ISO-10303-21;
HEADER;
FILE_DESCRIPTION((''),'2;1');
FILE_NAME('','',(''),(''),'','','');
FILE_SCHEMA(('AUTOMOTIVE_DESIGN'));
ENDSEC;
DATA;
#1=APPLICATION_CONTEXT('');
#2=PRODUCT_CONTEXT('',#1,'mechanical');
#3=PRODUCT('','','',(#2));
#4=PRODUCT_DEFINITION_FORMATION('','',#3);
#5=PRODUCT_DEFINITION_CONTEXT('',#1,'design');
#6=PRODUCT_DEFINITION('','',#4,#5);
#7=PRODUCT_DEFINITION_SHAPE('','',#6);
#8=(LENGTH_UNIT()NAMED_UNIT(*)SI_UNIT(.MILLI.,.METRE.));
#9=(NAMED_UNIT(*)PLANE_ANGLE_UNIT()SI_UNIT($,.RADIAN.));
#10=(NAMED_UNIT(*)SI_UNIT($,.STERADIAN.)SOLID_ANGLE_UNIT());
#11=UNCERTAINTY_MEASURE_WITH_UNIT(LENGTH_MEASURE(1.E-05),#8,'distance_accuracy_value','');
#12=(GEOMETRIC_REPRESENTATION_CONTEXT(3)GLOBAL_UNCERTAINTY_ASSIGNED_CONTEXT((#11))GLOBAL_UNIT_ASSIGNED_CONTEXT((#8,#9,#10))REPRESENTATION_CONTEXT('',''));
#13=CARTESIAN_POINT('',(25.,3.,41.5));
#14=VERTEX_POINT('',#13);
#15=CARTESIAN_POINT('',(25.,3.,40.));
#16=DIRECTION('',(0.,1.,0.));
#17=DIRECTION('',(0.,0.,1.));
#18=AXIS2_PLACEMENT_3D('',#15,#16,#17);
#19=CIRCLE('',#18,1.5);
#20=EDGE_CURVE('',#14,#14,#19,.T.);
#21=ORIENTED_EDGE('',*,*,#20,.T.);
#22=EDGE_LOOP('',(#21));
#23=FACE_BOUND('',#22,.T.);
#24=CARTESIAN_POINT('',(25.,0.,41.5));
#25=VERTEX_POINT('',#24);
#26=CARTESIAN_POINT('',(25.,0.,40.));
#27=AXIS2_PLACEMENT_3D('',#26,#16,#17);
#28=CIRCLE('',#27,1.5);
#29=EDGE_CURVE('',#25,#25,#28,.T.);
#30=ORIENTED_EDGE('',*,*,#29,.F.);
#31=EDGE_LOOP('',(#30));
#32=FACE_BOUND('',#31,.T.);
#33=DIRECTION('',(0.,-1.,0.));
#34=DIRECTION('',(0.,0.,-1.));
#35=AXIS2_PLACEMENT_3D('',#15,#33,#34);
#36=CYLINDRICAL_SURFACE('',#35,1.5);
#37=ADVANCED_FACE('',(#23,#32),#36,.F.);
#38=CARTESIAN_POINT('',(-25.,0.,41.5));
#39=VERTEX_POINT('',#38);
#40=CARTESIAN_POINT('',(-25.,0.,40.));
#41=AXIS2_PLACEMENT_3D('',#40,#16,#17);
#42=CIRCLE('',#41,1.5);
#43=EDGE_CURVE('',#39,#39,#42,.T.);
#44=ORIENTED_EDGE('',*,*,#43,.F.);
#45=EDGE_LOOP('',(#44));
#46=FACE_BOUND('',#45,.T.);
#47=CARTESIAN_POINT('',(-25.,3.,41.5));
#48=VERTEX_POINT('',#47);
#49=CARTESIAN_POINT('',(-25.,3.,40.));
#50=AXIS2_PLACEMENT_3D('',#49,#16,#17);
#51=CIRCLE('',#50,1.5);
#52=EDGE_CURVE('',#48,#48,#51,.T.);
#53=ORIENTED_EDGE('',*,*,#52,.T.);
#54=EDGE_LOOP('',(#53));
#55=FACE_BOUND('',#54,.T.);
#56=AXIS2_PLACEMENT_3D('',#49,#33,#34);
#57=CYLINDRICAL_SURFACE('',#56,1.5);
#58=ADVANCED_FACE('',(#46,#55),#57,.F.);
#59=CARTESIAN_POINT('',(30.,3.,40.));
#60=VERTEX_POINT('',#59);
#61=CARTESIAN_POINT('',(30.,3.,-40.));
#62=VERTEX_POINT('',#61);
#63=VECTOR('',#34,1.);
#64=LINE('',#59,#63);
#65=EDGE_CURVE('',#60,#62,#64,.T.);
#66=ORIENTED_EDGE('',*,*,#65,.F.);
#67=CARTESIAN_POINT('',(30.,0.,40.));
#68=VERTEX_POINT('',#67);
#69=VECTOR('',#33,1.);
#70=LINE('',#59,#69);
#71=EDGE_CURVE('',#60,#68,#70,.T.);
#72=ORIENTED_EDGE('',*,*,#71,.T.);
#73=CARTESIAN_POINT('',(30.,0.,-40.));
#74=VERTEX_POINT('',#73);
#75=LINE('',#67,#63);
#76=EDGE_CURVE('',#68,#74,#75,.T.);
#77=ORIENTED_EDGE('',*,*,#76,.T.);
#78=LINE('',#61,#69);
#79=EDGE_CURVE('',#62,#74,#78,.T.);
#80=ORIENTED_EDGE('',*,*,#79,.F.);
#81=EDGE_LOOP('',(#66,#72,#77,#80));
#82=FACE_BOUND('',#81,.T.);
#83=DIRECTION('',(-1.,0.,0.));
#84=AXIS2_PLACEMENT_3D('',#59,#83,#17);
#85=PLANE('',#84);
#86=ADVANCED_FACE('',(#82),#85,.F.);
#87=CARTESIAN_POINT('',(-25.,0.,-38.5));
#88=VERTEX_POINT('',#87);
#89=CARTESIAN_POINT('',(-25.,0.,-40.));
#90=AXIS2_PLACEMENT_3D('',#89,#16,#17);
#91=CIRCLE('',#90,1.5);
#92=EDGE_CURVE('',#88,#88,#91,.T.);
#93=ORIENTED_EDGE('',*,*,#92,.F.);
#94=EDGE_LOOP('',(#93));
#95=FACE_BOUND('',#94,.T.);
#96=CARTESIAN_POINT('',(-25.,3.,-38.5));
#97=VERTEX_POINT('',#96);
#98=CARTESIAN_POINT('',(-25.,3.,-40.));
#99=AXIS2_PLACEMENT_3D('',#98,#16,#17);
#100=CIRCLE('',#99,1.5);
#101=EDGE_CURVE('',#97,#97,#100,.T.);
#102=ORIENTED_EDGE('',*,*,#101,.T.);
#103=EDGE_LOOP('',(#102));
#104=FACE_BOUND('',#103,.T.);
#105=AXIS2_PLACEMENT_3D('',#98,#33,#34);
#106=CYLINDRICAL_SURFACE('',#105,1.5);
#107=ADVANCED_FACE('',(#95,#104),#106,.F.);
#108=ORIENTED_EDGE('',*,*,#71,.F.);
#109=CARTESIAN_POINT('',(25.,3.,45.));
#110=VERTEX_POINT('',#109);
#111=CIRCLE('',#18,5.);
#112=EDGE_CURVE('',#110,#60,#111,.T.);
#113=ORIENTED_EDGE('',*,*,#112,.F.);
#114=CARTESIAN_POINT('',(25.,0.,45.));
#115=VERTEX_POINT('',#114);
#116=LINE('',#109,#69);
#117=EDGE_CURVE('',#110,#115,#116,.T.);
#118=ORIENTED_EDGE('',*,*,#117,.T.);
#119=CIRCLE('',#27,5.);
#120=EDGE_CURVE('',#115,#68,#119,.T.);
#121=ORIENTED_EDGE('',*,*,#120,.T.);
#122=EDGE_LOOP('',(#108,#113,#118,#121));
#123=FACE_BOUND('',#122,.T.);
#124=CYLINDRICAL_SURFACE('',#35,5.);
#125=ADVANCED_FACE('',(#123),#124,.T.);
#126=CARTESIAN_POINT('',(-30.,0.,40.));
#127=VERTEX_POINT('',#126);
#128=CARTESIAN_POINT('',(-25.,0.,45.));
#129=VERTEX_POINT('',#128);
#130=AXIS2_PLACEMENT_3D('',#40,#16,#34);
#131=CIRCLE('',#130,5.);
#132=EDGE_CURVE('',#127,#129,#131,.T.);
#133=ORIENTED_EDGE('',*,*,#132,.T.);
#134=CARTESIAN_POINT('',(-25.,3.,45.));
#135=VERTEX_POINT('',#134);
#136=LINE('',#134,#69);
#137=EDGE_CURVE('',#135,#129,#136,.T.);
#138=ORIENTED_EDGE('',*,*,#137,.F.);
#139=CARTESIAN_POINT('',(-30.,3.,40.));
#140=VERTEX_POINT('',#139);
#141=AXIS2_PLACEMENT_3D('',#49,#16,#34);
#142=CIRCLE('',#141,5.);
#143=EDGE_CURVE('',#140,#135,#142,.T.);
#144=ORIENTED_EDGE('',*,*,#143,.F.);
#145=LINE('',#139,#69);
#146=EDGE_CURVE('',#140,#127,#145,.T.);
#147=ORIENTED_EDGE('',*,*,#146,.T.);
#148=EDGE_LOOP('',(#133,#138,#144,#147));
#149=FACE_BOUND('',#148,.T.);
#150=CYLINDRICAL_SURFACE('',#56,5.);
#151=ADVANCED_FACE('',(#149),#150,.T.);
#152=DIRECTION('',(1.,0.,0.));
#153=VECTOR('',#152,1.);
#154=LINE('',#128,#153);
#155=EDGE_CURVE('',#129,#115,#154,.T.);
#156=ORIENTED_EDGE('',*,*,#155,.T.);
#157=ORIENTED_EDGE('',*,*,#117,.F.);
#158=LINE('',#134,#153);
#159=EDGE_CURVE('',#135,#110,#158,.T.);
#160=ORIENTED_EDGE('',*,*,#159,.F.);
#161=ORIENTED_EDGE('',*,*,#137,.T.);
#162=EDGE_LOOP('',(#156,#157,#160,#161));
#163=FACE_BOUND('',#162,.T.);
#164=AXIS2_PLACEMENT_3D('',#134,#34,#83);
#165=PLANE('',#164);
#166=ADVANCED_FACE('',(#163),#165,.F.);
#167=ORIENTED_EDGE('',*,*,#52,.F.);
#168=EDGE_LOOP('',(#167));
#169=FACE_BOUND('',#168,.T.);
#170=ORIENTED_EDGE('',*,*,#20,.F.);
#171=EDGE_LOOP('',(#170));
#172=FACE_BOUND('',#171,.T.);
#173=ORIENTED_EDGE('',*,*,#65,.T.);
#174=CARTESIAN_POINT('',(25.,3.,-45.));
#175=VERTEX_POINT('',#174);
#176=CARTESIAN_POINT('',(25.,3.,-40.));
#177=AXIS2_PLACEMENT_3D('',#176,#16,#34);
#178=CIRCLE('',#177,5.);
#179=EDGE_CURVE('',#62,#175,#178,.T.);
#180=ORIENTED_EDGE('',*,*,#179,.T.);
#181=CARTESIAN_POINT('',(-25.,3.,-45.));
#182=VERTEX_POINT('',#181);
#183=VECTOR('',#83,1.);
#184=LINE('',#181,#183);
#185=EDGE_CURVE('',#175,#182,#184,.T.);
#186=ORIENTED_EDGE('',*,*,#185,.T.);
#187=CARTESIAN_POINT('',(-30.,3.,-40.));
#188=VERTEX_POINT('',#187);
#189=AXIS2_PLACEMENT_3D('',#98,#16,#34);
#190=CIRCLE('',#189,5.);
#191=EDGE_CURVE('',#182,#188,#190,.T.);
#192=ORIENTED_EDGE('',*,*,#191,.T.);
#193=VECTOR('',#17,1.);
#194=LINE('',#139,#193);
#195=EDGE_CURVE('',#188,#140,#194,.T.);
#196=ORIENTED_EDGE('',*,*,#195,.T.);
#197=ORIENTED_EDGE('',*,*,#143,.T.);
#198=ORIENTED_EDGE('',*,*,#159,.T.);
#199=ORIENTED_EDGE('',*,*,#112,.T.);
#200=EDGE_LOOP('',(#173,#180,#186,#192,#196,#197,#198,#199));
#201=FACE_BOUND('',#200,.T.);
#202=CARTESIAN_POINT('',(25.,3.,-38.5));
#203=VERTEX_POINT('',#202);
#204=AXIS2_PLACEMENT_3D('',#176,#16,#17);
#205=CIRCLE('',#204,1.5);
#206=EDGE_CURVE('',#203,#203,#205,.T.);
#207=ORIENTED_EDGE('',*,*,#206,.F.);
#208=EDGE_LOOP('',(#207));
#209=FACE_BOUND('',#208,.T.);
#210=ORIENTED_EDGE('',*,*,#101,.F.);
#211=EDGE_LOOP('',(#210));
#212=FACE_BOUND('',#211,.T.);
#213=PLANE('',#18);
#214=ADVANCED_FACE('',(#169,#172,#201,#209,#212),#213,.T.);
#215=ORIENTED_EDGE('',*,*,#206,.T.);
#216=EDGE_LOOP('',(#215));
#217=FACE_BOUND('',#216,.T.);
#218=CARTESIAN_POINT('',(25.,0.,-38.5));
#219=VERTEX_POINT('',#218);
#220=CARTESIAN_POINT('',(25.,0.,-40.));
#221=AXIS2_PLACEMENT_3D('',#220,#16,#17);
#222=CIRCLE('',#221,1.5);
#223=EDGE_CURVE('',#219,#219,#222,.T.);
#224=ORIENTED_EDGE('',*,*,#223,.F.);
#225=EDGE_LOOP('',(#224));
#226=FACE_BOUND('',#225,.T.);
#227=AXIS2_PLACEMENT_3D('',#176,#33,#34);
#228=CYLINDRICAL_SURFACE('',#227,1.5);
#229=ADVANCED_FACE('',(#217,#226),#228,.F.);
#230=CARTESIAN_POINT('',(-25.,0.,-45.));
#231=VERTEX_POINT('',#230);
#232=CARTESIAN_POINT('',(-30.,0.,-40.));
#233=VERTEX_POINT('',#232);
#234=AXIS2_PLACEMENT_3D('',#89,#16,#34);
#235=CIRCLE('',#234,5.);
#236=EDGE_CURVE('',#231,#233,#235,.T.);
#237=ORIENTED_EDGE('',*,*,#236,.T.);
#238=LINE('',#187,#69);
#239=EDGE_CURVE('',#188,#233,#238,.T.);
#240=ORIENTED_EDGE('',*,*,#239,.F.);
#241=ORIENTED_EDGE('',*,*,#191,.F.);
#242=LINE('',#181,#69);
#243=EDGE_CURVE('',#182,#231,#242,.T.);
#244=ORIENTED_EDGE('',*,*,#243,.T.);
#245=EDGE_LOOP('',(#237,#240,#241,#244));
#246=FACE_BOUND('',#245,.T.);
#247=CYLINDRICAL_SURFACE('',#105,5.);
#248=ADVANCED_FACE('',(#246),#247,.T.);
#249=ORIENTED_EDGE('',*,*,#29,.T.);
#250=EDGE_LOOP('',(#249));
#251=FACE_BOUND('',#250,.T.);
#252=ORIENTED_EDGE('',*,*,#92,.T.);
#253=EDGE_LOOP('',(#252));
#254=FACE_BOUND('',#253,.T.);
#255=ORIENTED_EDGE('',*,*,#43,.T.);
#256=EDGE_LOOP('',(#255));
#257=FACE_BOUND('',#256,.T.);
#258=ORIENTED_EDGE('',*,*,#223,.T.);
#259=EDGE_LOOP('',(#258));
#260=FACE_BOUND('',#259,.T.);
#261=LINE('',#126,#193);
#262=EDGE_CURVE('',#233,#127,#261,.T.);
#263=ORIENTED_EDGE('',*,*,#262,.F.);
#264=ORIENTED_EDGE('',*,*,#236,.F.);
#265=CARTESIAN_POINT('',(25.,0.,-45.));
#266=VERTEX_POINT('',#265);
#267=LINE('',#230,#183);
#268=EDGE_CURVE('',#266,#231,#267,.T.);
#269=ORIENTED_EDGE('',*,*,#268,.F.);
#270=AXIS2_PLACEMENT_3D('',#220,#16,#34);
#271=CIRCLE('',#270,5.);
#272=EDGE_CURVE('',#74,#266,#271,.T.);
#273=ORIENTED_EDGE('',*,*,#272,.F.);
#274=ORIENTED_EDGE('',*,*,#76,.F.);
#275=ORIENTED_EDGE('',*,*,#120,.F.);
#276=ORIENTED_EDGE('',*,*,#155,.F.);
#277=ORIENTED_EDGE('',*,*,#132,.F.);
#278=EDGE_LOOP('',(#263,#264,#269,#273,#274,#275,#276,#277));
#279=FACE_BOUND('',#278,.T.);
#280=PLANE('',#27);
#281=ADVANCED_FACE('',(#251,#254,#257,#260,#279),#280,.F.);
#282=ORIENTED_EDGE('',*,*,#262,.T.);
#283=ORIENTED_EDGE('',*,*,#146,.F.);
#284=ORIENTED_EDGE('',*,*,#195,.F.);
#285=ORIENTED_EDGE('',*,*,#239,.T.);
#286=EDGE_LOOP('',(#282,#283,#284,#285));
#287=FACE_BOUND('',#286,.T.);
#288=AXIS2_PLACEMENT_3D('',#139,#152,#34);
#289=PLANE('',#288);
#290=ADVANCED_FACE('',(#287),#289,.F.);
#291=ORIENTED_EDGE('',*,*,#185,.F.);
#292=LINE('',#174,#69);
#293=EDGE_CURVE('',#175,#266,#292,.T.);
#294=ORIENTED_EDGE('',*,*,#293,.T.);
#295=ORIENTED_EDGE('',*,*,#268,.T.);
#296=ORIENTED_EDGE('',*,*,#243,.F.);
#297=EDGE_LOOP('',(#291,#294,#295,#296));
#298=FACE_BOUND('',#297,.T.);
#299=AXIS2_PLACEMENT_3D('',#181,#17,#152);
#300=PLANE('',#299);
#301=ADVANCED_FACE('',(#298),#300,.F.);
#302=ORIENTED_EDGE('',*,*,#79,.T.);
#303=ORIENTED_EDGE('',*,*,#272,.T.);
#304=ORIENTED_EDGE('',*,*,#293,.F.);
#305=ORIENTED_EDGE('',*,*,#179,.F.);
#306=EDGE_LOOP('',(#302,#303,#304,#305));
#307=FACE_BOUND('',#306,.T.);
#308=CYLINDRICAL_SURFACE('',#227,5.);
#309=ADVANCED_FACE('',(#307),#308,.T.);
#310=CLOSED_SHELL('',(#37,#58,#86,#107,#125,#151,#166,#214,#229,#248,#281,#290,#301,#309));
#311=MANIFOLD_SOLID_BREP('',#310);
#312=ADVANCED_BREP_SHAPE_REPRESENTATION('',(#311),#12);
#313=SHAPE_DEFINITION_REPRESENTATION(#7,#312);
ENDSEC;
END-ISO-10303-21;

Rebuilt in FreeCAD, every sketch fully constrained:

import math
import FreeCAD as App
import Part
import Sketcher

doc = App.newDocument("Part")
body = doc.addObject("PartDesign::Body", "Body")

# Sketch on XZ plane
sketch1 = body.newObject("Sketcher::SketchObject", "Sketch")
sketch1.AttachmentSupport = (doc.getObject("XZ_Plane"), [""])
sketch1.MapMode = "FlatFace"
sketch1.addGeometry([
    Part.LineSegment(App.Vector(-25, 45, 0), App.Vector(25, 45, 0)),  # 0
    Part.ArcOfCircle(Part.Circle(App.Vector(25, 40, 0), App.Vector(0, 0, 1), 5), math.radians(0), math.radians(90)),  # 1
    Part.LineSegment(App.Vector(30, 40, 0), App.Vector(30, -40, 0)),  # 2
    Part.ArcOfCircle(Part.Circle(App.Vector(25, -40, 0), App.Vector(0, 0, 1), 5), math.radians(-90), math.radians(0)),  # 3
    Part.LineSegment(App.Vector(25, -45, 0), App.Vector(-25, -45, 0)),  # 4
    Part.ArcOfCircle(Part.Circle(App.Vector(-25, -40, 0), App.Vector(0, 0, 1), 5), math.radians(180), math.radians(270)),  # 5
    Part.LineSegment(App.Vector(-30, -40, 0), App.Vector(-30, 40, 0)),  # 6
    Part.ArcOfCircle(Part.Circle(App.Vector(-25, 40, 0), App.Vector(0, 0, 1), 5), math.radians(90), math.radians(180)),  # 7
    Part.Circle(App.Vector(-25, 40, 0), App.Vector(0, 0, 1), 1.5),  # 8
    Part.Circle(App.Vector(25, 40, 0), App.Vector(0, 0, 1), 1.5),  # 9
    Part.Circle(App.Vector(-25, -40, 0), App.Vector(0, 0, 1), 1.5),  # 10
    Part.Circle(App.Vector(25, -40, 0), App.Vector(0, 0, 1), 1.5),  # 11
], False)
sketch1.addConstraint([
    Sketcher.Constraint("Tangent", 0, 2, 1, 2),
    Sketcher.Constraint("Tangent", 1, 1, 2, 1),
    Sketcher.Constraint("Tangent", 2, 2, 3, 2),
    Sketcher.Constraint("Tangent", 3, 1, 4, 1),
    Sketcher.Constraint("Tangent", 4, 2, 5, 2),
    Sketcher.Constraint("Tangent", 5, 1, 6, 1),
    Sketcher.Constraint("Tangent", 6, 2, 7, 2),
    Sketcher.Constraint("Tangent", 7, 1, 0, 1),
    Sketcher.Constraint("Horizontal", 0),
    Sketcher.Constraint("Vertical", 2),
    Sketcher.Constraint("Horizontal", 4),
    Sketcher.Constraint("Vertical", 6),
    Sketcher.Constraint("Coincident", 8, 3, 7, 3),
    Sketcher.Constraint("Coincident", 9, 3, 1, 3),
    Sketcher.Constraint("Coincident", 10, 3, 5, 3),
    Sketcher.Constraint("Coincident", 11, 3, 3, 3),
    Sketcher.Constraint("Equal", 1, 3),
    Sketcher.Constraint("Equal", 3, 5),
    Sketcher.Constraint("Equal", 5, 7),
    Sketcher.Constraint("Equal", 8, 9),
    Sketcher.Constraint("Equal", 9, 10),
    Sketcher.Constraint("Equal", 10, 11),
    Sketcher.Constraint("Symmetric", 1, 3, 5, 3, -1, 1),
    Sketcher.Constraint("Diameter", 8, 3.0),
    Sketcher.Constraint("Radius", 1, 5.0),
    Sketcher.Constraint("DistanceX", 0, 1, 0, 2, 50.0),
    Sketcher.Constraint("DistanceY", 2, 2, 2, 1, 80.0),
])
pad1 = body.newObject("PartDesign::Pad", "Pad")
pad1.Profile = sketch1
pad1.Length = 3
pad1.Reversed = True

doc.recompute()
